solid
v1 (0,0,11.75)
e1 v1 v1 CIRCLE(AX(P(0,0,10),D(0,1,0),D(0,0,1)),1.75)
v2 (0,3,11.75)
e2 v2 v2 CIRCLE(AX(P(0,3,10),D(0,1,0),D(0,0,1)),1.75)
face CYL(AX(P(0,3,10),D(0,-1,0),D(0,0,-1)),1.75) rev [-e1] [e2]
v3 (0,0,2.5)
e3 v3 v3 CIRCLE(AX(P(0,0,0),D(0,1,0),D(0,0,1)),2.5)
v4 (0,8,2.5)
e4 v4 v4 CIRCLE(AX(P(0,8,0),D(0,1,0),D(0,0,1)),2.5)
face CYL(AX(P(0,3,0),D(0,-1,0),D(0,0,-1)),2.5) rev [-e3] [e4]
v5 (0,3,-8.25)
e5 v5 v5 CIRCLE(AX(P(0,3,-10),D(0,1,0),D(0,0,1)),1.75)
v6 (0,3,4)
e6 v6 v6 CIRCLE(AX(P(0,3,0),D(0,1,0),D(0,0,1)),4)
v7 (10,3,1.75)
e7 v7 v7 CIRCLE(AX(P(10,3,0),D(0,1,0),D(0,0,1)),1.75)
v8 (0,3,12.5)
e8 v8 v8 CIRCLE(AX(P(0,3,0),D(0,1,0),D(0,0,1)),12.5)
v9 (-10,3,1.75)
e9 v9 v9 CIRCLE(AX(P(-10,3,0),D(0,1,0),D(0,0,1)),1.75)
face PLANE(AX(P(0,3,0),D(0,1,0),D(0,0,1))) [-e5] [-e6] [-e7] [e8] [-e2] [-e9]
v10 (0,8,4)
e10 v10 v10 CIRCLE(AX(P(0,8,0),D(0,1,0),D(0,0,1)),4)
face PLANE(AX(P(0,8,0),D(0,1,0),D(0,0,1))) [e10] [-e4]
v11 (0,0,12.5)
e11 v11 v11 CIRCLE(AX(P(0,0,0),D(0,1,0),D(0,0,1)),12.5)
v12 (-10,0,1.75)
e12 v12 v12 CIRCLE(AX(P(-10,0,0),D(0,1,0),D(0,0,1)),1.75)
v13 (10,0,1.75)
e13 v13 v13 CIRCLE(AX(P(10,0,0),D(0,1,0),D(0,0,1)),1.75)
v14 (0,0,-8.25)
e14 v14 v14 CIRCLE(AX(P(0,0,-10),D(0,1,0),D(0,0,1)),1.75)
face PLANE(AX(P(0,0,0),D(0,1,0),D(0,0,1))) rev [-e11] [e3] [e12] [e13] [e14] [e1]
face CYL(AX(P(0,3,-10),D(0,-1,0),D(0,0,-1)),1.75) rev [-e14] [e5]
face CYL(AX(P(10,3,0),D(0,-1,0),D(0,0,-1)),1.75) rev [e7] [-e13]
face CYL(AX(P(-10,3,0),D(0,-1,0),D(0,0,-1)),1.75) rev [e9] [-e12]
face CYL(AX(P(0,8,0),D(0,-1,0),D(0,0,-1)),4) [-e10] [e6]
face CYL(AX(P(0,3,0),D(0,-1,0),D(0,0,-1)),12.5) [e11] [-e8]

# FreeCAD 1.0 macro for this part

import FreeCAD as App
import Part
import Sketcher
from FreeCAD import Vector
Q = App.Units.Quantity

doc = App.newDocument("Part")
body = doc.addObject("PartDesign::Body", "Body")

# Sketch on XZ plane
sketch1 = doc.addObject("Sketcher::SketchObject", "Sketch")
body.addObject(sketch1)
sketch1.AttachmentSupport = (doc.XZ_Plane, [""])
sketch1.MapMode = "FlatFace"
sketch1.addGeometry(Part.Circle(Vector(0, 0, 0), Vector(0, 0, 1), 12.5), False)
sketch1.addGeometry(Part.Circle(Vector(0, -10, 0), Vector(0, 0, 1), 1.8), False)
sketch1.addGeometry(Part.Circle(Vector(-10, 0, 0), Vector(0, 0, 1), 1.8), False)
sketch1.addGeometry(Part.Circle(Vector(10, 0, 0), Vector(0, 0, 1), 1.8), False)
sketch1.addGeometry(Part.Circle(Vector(0, 0, 0), Vector(0, 0, 1), 2.5), False)
sketch1.addGeometry(Part.Circle(Vector(0, 10, 0), Vector(0, 0, 1), 1.8), False)
sketch1.addConstraint(Sketcher.Constraint("Coincident", 0, 3, -1, 1))
sketch1.addConstraint(Sketcher.Constraint("Coincident", 4, 3, -1, 1))
sketch1.addConstraint(Sketcher.Constraint("Equal", 1, 2))
sketch1.addConstraint(Sketcher.Constraint("Equal", 2, 3))
sketch1.addConstraint(Sketcher.Constraint("Equal", 3, 5))
sketch1.addConstraint(Sketcher.Constraint("Symmetric", 2, 3, 3, 3, -1, 1))
sketch1.addConstraint(Sketcher.Constraint("Symmetric", 1, 3, 5, 3, -1, 1))
sketch1.addConstraint(Sketcher.Constraint("PointOnObject", 1, 3, -2))
sketch1.addConstraint(Sketcher.Constraint("PointOnObject", 2, 3, -1))
sketch1.addConstraint(Sketcher.Constraint("Diameter", 0, Q("25 mm")))
sketch1.addConstraint(Sketcher.Constraint("Diameter", 4, Q("5 mm")))
sketch1.addConstraint(Sketcher.Constraint("Diameter", 1, Q("3.5 mm")))
sketch1.addConstraint(Sketcher.Constraint("DistanceY", 1, 3, -1, 1, Q("10 mm")))
sketch1.addConstraint(Sketcher.Constraint("DistanceX", 2, 3, -1, 1, Q("10 mm")))
pad1 = doc.addObject("PartDesign::Pad", "Pad")
body.addObject(pad1)
pad1.Profile = sketch1
pad1.Length = 3
pad1.Reversed = True

# Sketch on XZ plane
sketch2 = doc.addObject("Sketcher::SketchObject", "Sketch001")
body.addObject(sketch2)
sketch2.AttachmentSupport = (doc.XZ_Plane, [""])
sketch2.MapMode = "FlatFace"
sketch2.AttachmentOffset = App.Placement(Vector(0, 0, -3), App.Rotation())
sketch2.addGeometry(Part.Circle(Vector(0, 0, 0), Vector(0, 0, 1), 4), False)
sketch2.addGeometry(Part.Circle(Vector(0, 0, 0), Vector(0, 0, 1), 2.5), False)
sketch2.addConstraint(Sketcher.Constraint("Coincident", 0, 3, -1, 1))
sketch2.addConstraint(Sketcher.Constraint("Coincident", 1, 3, -1, 1))
sketch2.addConstraint(Sketcher.Constraint("Diameter", 0, Q("8 mm")))
sketch2.addConstraint(Sketcher.Constraint("Diameter", 1, Q("5 mm")))
pad2 = doc.addObject("PartDesign::Pad", "Pad001")
body.addObject(pad2)
pad2.Profile = sketch2
pad2.Length = 5
pad2.Reversed = True

doc.recompute()
